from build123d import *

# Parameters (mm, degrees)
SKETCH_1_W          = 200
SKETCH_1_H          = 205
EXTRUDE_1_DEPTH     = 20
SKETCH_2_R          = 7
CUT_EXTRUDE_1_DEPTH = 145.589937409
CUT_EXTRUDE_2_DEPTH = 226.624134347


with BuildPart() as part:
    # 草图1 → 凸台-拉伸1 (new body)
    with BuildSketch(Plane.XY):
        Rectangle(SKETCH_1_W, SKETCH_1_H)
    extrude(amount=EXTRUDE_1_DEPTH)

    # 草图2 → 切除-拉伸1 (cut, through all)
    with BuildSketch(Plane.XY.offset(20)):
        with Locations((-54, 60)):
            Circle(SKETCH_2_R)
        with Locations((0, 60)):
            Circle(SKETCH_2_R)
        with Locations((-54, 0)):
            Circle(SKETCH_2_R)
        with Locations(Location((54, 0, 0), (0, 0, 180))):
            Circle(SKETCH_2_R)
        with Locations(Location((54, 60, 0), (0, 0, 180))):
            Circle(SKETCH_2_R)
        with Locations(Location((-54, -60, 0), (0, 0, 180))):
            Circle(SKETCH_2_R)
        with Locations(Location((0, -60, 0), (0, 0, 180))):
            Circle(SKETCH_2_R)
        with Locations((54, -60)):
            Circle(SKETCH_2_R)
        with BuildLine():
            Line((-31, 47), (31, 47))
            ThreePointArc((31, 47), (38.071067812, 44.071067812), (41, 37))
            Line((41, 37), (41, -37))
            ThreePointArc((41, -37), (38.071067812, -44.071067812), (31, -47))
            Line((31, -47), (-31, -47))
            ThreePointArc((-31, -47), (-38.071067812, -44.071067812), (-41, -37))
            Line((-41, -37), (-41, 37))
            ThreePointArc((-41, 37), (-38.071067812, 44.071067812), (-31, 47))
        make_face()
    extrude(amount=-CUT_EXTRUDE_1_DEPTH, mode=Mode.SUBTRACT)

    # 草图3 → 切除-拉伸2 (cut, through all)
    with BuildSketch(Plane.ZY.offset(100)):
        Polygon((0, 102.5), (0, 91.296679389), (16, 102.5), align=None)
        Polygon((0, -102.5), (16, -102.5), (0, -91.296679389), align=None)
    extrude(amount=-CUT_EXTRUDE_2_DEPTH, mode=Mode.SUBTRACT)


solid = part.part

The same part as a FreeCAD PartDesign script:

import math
import FreeCAD as App
import Part
import Sketcher

V = App.Vector
Q = App.Units.Quantity

doc = App.newDocument("Part")
body = doc.addObject("PartDesign::Body", "Body")

# Sketch on XY plane
sketch1 = body.newObject("Sketcher::SketchObject", "Sketch")
sketch1.AttachmentSupport = (doc.getObject("XY_Plane"), [""])
sketch1.MapMode = "FlatFace"
sketch1.addGeometry([
    Part.LineSegment(V(-100, 102, 0), V(-100, -102, 0)),
    Part.LineSegment(V(-100, -102, 0), V(100, -102, 0)),
    Part.LineSegment(V(100, -102, 0), V(100, 102, 0)),
    Part.LineSegment(V(100, 102, 0), V(-100, 102, 0)),
], False)
sketch1.addConstraint([
    Sketcher.Constraint("Coincident", 0, 2, 1, 1),
    Sketcher.Constraint("Coincident", 1, 2, 2, 1),
    Sketcher.Constraint("Coincident", 2, 2, 3, 1),
    Sketcher.Constraint("Coincident", 3, 2, 0, 1),
    Sketcher.Constraint("Vertical", 0),
    Sketcher.Constraint("Horizontal", 1),
    Sketcher.Constraint("Vertical", 2),
    Sketcher.Constraint("Horizontal", 3),
    Sketcher.Constraint("Symmetric", 0, 2, 2, 2, -1, 1),
    Sketcher.Constraint("DistanceX", 1, 1, 1, 2, 200.0),
    Sketcher.Constraint("DistanceY", 0, 2, 0, 1, 205.0),
])
pad1 = body.newObject("PartDesign::Pad", "Pad")
pad1.Profile = sketch1
pad1.Length = 20

# Sketch on XY plane
sketch2 = body.newObject("Sketcher::SketchObject", "Sketch001")
sketch2.AttachmentSupport = (doc.getObject("XY_Plane"), [""])
sketch2.MapMode = "FlatFace"
sketch2.AttachmentOffset = App.Placement(V(0, 0, 20), App.Rotation())
sketch2.addGeometry([
    Part.Circle(V(-54, 60, 0), V(0, 0, 1), 7),  # 0
    Part.Circle(V(0, 60, 0), V(0, 0, 1), 7),  # 1
    Part.Circle(V(-54, 0, 0), V(0, 0, 1), 7),  # 2
    Part.Circle(V(54, 0, 0), V(0, 0, 1), 7),  # 3
    Part.Circle(V(54, 60, 0), V(0, 0, 1), 7),  # 4
    Part.Circle(V(-54, -60, 0), V(0, 0, 1), 7),  # 5
    Part.Circle(V(0, -60, 0), V(0, 0, 1), 7),  # 6
    Part.Circle(V(54, -60, 0), V(0, 0, 1), 7),  # 7
    Part.LineSegment(V(31, 47, 0), V(-31, 47, 0)),  # 8
    Part.ArcOfCircle(Part.Circle(V(-31, 37, 0), V(0, 0, 1), 10), math.radians(90), math.radians(180)),  # 9
    Part.LineSegment(V(-41, 37, 0), V(-41, -37, 0)),  # 10
    Part.ArcOfCircle(Part.Circle(V(-31, -37, 0), V(0, 0, 1), 10), math.radians(180), math.radians(270)),  # 11
    Part.LineSegment(V(-31, -47, 0), V(31, -47, 0)),  # 12
    Part.ArcOfCircle(Part.Circle(V(31, -37, 0), V(0, 0, 1), 10), math.radians(-90), math.radians(0)),  # 13
    Part.LineSegment(V(41, -37, 0), V(41, 37, 0)),  # 14
    Part.ArcOfCircle(Part.Circle(V(31, 37, 0), V(0, 0, 1), 10), math.radians(0), math.radians(90)),  # 15
], False)
sketch2.addConstraint([
    Sketcher.Constraint("Tangent", 8, 2, 9, 1),
    Sketcher.Constraint("Tangent", 9, 2, 10, 1),
    Sketcher.Constraint("Tangent", 10, 2, 11, 1),
    Sketcher.Constraint("Tangent", 11, 2, 12, 1),
    Sketcher.Constraint("Tangent", 12, 2, 13, 1),
    Sketcher.Constraint("Tangent", 13, 2, 14, 1),
    Sketcher.Constraint("Tangent", 14, 2, 15, 1),
    Sketcher.Constraint("Tangent", 15, 2, 8, 1),
    Sketcher.Constraint("Horizontal", 8),
    Sketcher.Constraint("Vertical", 10),
    Sketcher.Constraint("Horizontal", 12),
    Sketcher.Constraint("Vertical", 14),
    Sketcher.Constraint("Equal", 0, 1),
    Sketcher.Constraint("Equal", 1, 2),
    Sketcher.Constraint("Equal", 2, 3),
    Sketcher.Constraint("Equal", 3, 4),
    Sketcher.Constraint("Equal", 4, 5),
    Sketcher.Constraint("Equal", 5, 6),
    Sketcher.Constraint("Equal", 6, 7),
    Sketcher.Constraint("Equal", 9, 11),
    Sketcher.Constraint("Equal", 11, 13),
    Sketcher.Constraint("Equal", 13, 15),
    Sketcher.Constraint("Symmetric", 2, 3, 3, 3, -1, 1),
    Sketcher.Constraint("Symmetric", 4, 3, 5, 3, -1, 1),
    Sketcher.Constraint("Symmetric", 1, 3, 6, 3, -1, 1),
    Sketcher.Constraint("Symmetric", 0, 3, 7, 3, -1, 1),
    Sketcher.Constraint("Symmetric", 9, 3, 13, 3, -1, 1),
    Sketcher.Constraint("Symmetric", 0, 3, 4, 3, -2),
    Sketcher.Constraint("PointOnObject", 1, 3, -2),
    Sketcher.Constraint("PointOnObject", 2, 3, -1),
    Sketcher.Constraint("Horizontal", 0, 3, 1, 3),
    Sketcher.Constraint("Vertical", 0, 3, 2, 3),
    Sketcher.Constraint("Diameter", 0, 14.0),
    Sketcher.Constraint("Radius", 9, 10.0),
    Sketcher.Constraint("DistanceX", 8, 2, 8, 1, 62.0),
    Sketcher.Constraint("DistanceY", 10, 2, 10, 1, 74.0),
    Sketcher.Constraint("DistanceX", 0, 3, -1, 1, 54.0),
    Sketcher.Constraint("DistanceY", -1, 1, 0, 3, 60.0),
])
pocket1 = body.newObject("PartDesign::Pocket", "Pocket")
pocket1.Profile = sketch2
pocket1.Type = "ThroughAll"

# Sketch on YZ plane
sketch3 = body.newObject("Sketcher::SketchObject", "Sketch002")
sketch3.AttachmentSupport = (doc.getObject("YZ_Plane"), [""])
sketch3.MapMode = "FlatFace"
sketch3.AttachmentOffset = App.Placement(V(0, 0, -100), App.Rotation())
sketch3.addGeometry([
    Part.LineSegment(V(102, 0, 0), V(91, 0, 0)),  # 0
    Part.LineSegment(V(91, 0, 0), V(102, 16, 0)),  # 1
    Part.LineSegment(V(102, 16, 0), V(102, 0, 0)),  # 2
    Part.LineSegment(V(-102, 0, 0), V(-102, 16, 0)),  # 3
    Part.LineSegment(V(-102, 16, 0), V(-91, 0, 0)),  # 4
    Part.LineSegment(V(-91, 0, 0), V(-102, 0, 0)),  # 5
], False)
sketch3.addConstraint([
    Sketcher.Constraint("Coincident", 0, 2, 1, 1),
    Sketcher.Constraint("Coincident", 1, 2, 2, 1),
    Sketcher.Constraint("Coincident", 2, 2, 0, 1),
    Sketcher.Constraint("Coincident", 3, 2, 4, 1),
    Sketcher.Constraint("Coincident", 4, 2, 5, 1),
    Sketcher.Constraint("Coincident", 5, 2, 3, 1),
    Sketcher.Constraint("Horizontal", 0),
    Sketcher.Constraint("Vertical", 2),
    Sketcher.Constraint("Vertical", 3),
    Sketcher.Constraint("Horizontal", 5),
    Sketcher.Constraint("Symmetric", 0, 2, 4, 2, -1, 1),
    Sketcher.Constraint("Symmetric", 1, 2, 3, 2, -2),
    Sketcher.Constraint("PointOnObject", 0, 2, -1),
    Sketcher.Constraint("DistanceY", 2, 2, 2, 1, 16.0),
    Sketcher.Constraint("Angle", 1, Q("55 deg")),
    Sketcher.Constraint("DistanceX", 3, 2, 1, 2, 205.0),
])
pocket2 = body.newObject("PartDesign::Pocket", "Pocket001")
pocket2.Profile = sketch3
pocket2.Type = "ThroughAll"
pocket2.Reversed = True

doc.recompute()
